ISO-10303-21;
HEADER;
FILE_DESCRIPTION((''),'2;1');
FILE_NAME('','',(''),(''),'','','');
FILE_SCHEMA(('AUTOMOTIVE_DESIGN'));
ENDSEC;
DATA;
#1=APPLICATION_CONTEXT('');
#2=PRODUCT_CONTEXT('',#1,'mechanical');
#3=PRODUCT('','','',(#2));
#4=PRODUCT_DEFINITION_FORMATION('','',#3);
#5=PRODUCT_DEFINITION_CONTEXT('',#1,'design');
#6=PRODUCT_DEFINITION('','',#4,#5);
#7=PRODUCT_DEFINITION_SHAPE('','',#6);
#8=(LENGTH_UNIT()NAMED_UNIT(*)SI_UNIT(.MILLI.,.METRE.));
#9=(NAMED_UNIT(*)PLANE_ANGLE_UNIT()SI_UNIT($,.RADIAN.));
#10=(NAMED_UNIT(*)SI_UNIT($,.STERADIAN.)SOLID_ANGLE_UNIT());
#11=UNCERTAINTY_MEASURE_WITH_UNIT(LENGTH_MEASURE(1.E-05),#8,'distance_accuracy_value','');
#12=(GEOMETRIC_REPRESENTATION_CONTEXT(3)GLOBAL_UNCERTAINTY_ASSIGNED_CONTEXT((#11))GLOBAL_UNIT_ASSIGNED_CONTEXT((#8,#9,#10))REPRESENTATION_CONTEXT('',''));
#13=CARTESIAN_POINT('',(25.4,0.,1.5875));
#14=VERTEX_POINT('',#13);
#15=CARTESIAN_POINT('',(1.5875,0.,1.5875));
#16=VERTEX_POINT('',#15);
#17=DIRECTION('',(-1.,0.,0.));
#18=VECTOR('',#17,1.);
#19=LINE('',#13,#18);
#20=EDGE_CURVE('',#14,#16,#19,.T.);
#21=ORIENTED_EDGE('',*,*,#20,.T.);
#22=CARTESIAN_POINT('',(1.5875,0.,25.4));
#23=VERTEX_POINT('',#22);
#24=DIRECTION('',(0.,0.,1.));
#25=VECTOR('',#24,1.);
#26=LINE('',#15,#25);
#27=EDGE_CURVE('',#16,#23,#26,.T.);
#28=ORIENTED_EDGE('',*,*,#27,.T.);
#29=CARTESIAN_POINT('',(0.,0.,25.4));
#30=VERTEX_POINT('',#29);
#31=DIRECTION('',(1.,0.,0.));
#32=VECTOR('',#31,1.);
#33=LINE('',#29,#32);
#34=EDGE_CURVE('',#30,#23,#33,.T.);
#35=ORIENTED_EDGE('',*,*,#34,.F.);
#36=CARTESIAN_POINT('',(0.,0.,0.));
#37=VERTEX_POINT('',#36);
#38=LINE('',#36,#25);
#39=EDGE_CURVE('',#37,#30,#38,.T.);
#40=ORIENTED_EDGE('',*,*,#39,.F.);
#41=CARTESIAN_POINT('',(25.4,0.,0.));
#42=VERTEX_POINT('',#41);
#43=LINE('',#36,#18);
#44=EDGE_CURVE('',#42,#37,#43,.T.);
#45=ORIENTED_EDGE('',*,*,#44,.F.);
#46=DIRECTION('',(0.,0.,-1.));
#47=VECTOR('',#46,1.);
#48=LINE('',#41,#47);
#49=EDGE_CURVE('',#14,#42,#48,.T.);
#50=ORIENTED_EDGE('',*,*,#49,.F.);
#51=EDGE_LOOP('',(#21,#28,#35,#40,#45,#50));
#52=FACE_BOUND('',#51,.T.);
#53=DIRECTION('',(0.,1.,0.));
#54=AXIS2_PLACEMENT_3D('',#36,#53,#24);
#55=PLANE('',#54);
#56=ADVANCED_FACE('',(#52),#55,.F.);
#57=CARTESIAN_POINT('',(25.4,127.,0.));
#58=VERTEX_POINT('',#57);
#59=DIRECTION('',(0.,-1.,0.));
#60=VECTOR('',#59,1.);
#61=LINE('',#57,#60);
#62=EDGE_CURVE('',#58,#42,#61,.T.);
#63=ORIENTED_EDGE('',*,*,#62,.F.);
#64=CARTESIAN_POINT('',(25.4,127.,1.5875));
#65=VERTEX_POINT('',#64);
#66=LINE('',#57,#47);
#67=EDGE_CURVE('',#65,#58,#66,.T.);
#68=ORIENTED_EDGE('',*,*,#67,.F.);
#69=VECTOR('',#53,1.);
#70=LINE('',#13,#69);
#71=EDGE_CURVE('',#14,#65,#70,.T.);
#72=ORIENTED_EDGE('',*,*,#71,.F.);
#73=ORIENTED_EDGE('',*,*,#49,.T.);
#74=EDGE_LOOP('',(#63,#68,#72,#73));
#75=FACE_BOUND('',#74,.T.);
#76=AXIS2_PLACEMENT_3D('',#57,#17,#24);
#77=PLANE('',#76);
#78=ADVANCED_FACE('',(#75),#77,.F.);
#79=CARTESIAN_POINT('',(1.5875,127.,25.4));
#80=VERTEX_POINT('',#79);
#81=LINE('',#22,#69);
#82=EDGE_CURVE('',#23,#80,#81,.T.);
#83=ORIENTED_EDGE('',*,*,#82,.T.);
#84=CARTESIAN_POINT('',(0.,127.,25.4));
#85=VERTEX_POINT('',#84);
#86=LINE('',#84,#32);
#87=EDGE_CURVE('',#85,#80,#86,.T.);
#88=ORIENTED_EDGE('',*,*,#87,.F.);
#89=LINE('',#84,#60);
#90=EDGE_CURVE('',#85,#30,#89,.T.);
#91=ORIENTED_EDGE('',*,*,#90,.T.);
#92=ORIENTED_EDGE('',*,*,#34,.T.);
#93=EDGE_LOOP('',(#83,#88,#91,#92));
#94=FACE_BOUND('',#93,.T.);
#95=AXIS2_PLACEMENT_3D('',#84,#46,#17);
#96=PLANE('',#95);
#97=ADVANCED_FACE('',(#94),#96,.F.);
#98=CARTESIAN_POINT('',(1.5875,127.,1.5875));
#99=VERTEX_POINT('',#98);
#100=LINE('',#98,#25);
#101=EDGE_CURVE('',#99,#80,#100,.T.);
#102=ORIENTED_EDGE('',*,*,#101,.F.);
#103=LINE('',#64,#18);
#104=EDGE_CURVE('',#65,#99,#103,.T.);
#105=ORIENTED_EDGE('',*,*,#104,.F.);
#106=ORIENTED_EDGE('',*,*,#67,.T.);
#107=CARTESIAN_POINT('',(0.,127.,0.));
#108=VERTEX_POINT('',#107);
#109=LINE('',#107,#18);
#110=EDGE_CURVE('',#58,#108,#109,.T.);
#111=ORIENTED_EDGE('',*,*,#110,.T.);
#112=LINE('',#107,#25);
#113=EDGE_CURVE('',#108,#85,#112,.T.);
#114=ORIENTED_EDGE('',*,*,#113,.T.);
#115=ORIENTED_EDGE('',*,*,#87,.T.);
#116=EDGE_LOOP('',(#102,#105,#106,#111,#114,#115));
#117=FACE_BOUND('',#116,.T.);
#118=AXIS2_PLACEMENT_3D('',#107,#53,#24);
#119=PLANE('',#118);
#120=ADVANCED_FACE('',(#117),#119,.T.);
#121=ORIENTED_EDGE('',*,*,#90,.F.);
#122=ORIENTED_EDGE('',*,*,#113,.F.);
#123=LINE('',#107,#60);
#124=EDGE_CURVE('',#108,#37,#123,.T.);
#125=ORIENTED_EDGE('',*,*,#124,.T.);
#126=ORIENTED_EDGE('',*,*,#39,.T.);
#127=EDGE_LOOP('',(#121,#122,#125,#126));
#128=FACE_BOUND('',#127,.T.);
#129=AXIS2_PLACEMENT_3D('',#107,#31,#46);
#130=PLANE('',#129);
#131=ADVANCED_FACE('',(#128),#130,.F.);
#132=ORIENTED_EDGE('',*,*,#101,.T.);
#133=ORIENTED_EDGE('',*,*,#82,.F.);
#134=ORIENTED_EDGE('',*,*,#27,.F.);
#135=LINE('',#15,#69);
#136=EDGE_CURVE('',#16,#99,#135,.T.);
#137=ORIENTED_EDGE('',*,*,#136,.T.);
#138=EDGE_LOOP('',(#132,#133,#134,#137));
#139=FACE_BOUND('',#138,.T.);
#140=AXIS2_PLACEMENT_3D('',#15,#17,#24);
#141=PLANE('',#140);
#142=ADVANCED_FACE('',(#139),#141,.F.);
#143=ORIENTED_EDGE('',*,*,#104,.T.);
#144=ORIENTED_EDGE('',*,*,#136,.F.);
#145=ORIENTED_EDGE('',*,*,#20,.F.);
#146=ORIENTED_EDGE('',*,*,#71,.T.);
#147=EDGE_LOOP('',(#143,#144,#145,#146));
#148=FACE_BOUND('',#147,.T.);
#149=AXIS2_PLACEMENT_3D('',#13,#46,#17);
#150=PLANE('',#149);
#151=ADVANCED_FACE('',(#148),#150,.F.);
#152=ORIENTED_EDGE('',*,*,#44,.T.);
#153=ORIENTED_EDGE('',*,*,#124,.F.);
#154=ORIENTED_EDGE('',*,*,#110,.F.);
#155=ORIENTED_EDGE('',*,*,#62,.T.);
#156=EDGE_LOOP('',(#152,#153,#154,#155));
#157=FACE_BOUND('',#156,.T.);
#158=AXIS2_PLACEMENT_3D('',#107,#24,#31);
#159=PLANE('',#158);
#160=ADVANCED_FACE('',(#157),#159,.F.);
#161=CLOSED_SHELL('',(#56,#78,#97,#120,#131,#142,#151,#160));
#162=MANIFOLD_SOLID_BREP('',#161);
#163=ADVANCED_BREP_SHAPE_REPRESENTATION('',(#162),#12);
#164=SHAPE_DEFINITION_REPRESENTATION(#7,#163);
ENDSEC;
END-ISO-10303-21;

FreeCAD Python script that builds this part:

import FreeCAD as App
import Part
import Sketcher
from FreeCAD import Vector
Q = App.Units.Quantity


def add_polygon(sketch, points):
    """Adds a closed chain of lines whose ends are joined by coincident constraints."""
    first, n = sketch.GeometryCount, len(points)
    for a, b in zip(points, points[1:] + points[:1]):
        sketch.addGeometry(Part.LineSegment(App.Vector(*a, 0), App.Vector(*b, 0)), False)
    for i in range(n):
        sketch.addConstraint(Sketcher.Constraint("Coincident", first + i, 2, first + (i + 1) % n, 1))

doc = App.newDocument("Part")
body = doc.addObject("PartDesign::Body", "Body")

# Sketch on XZ plane
sketch1 = doc.addObject("Sketcher::SketchObject", "Sketch")
body.addObject(sketch1)
sketch1.AttachmentSupport = (doc.XZ_Plane, [""])
sketch1.MapMode = "FlatFace"
add_polygon(sketch1, [(0, 0), (0, 25), (25, 25), (25, 0)])  # lines 0-3
sketch1.addConstraint([
    Sketcher.Constraint("Vertical", 0),
    Sketcher.Constraint("Horizontal", 1),
    Sketcher.Constraint("Vertical", 2),
    Sketcher.Constraint("Horizontal", 3),
    Sketcher.Constraint("Coincident", 3, 2, -1, 1),
    Sketcher.Constraint("Equal", 3, 0),
    Sketcher.Constraint("DistanceX", 1, 1, 1, 2, Q("1 in")),
])
pad1 = doc.addObject("PartDesign::Pad", "Pad")
body.addObject(pad1)
pad1.Profile = sketch1
pad1.Length = Q("5 in")
pad1.Reversed = True

# Sketch on XZ plane
sketch2 = doc.addObject("Sketcher::SketchObject", "Sketch001")
body.addObject(sketch2)
sketch2.AttachmentSupport = (doc.XZ_Plane, [""])
sketch2.MapMode = "FlatFace"
sketch2.AttachmentOffset = App.Placement(Vector(0, 0, -5 * 25.4), App.Rotation())
add_polygon(sketch2, [(2, 2), (2, 25), (25, 25), (25, 2)])  # lines 0-3
sketch2.addConstraint([
    Sketcher.Constraint("Vertical", 0),
    Sketcher.Constraint("Horizontal", 1),
    Sketcher.Constraint("Vertical", 2),
    Sketcher.Constraint("Horizontal", 3),
    Sketcher.Constraint("Equal", 3, 0),
    Sketcher.Constraint("DistanceY", -1, 1, 0, 2, Q("1 in")),
    Sketcher.Constraint("DistanceX", -1, 1, 1, 2, Q("1 in")),
    Sketcher.Constraint("DistanceX", 1, 1, 1, 2, Q("0.9375 in")),
])
pocket1 = doc.addObject("PartDesign::Pocket", "Pocket")
body.addObject(pocket1)
pocket1.Profile = sketch2
pocket1.Type = "ThroughAll"
pocket1.Reversed = True

doc.recompute()
